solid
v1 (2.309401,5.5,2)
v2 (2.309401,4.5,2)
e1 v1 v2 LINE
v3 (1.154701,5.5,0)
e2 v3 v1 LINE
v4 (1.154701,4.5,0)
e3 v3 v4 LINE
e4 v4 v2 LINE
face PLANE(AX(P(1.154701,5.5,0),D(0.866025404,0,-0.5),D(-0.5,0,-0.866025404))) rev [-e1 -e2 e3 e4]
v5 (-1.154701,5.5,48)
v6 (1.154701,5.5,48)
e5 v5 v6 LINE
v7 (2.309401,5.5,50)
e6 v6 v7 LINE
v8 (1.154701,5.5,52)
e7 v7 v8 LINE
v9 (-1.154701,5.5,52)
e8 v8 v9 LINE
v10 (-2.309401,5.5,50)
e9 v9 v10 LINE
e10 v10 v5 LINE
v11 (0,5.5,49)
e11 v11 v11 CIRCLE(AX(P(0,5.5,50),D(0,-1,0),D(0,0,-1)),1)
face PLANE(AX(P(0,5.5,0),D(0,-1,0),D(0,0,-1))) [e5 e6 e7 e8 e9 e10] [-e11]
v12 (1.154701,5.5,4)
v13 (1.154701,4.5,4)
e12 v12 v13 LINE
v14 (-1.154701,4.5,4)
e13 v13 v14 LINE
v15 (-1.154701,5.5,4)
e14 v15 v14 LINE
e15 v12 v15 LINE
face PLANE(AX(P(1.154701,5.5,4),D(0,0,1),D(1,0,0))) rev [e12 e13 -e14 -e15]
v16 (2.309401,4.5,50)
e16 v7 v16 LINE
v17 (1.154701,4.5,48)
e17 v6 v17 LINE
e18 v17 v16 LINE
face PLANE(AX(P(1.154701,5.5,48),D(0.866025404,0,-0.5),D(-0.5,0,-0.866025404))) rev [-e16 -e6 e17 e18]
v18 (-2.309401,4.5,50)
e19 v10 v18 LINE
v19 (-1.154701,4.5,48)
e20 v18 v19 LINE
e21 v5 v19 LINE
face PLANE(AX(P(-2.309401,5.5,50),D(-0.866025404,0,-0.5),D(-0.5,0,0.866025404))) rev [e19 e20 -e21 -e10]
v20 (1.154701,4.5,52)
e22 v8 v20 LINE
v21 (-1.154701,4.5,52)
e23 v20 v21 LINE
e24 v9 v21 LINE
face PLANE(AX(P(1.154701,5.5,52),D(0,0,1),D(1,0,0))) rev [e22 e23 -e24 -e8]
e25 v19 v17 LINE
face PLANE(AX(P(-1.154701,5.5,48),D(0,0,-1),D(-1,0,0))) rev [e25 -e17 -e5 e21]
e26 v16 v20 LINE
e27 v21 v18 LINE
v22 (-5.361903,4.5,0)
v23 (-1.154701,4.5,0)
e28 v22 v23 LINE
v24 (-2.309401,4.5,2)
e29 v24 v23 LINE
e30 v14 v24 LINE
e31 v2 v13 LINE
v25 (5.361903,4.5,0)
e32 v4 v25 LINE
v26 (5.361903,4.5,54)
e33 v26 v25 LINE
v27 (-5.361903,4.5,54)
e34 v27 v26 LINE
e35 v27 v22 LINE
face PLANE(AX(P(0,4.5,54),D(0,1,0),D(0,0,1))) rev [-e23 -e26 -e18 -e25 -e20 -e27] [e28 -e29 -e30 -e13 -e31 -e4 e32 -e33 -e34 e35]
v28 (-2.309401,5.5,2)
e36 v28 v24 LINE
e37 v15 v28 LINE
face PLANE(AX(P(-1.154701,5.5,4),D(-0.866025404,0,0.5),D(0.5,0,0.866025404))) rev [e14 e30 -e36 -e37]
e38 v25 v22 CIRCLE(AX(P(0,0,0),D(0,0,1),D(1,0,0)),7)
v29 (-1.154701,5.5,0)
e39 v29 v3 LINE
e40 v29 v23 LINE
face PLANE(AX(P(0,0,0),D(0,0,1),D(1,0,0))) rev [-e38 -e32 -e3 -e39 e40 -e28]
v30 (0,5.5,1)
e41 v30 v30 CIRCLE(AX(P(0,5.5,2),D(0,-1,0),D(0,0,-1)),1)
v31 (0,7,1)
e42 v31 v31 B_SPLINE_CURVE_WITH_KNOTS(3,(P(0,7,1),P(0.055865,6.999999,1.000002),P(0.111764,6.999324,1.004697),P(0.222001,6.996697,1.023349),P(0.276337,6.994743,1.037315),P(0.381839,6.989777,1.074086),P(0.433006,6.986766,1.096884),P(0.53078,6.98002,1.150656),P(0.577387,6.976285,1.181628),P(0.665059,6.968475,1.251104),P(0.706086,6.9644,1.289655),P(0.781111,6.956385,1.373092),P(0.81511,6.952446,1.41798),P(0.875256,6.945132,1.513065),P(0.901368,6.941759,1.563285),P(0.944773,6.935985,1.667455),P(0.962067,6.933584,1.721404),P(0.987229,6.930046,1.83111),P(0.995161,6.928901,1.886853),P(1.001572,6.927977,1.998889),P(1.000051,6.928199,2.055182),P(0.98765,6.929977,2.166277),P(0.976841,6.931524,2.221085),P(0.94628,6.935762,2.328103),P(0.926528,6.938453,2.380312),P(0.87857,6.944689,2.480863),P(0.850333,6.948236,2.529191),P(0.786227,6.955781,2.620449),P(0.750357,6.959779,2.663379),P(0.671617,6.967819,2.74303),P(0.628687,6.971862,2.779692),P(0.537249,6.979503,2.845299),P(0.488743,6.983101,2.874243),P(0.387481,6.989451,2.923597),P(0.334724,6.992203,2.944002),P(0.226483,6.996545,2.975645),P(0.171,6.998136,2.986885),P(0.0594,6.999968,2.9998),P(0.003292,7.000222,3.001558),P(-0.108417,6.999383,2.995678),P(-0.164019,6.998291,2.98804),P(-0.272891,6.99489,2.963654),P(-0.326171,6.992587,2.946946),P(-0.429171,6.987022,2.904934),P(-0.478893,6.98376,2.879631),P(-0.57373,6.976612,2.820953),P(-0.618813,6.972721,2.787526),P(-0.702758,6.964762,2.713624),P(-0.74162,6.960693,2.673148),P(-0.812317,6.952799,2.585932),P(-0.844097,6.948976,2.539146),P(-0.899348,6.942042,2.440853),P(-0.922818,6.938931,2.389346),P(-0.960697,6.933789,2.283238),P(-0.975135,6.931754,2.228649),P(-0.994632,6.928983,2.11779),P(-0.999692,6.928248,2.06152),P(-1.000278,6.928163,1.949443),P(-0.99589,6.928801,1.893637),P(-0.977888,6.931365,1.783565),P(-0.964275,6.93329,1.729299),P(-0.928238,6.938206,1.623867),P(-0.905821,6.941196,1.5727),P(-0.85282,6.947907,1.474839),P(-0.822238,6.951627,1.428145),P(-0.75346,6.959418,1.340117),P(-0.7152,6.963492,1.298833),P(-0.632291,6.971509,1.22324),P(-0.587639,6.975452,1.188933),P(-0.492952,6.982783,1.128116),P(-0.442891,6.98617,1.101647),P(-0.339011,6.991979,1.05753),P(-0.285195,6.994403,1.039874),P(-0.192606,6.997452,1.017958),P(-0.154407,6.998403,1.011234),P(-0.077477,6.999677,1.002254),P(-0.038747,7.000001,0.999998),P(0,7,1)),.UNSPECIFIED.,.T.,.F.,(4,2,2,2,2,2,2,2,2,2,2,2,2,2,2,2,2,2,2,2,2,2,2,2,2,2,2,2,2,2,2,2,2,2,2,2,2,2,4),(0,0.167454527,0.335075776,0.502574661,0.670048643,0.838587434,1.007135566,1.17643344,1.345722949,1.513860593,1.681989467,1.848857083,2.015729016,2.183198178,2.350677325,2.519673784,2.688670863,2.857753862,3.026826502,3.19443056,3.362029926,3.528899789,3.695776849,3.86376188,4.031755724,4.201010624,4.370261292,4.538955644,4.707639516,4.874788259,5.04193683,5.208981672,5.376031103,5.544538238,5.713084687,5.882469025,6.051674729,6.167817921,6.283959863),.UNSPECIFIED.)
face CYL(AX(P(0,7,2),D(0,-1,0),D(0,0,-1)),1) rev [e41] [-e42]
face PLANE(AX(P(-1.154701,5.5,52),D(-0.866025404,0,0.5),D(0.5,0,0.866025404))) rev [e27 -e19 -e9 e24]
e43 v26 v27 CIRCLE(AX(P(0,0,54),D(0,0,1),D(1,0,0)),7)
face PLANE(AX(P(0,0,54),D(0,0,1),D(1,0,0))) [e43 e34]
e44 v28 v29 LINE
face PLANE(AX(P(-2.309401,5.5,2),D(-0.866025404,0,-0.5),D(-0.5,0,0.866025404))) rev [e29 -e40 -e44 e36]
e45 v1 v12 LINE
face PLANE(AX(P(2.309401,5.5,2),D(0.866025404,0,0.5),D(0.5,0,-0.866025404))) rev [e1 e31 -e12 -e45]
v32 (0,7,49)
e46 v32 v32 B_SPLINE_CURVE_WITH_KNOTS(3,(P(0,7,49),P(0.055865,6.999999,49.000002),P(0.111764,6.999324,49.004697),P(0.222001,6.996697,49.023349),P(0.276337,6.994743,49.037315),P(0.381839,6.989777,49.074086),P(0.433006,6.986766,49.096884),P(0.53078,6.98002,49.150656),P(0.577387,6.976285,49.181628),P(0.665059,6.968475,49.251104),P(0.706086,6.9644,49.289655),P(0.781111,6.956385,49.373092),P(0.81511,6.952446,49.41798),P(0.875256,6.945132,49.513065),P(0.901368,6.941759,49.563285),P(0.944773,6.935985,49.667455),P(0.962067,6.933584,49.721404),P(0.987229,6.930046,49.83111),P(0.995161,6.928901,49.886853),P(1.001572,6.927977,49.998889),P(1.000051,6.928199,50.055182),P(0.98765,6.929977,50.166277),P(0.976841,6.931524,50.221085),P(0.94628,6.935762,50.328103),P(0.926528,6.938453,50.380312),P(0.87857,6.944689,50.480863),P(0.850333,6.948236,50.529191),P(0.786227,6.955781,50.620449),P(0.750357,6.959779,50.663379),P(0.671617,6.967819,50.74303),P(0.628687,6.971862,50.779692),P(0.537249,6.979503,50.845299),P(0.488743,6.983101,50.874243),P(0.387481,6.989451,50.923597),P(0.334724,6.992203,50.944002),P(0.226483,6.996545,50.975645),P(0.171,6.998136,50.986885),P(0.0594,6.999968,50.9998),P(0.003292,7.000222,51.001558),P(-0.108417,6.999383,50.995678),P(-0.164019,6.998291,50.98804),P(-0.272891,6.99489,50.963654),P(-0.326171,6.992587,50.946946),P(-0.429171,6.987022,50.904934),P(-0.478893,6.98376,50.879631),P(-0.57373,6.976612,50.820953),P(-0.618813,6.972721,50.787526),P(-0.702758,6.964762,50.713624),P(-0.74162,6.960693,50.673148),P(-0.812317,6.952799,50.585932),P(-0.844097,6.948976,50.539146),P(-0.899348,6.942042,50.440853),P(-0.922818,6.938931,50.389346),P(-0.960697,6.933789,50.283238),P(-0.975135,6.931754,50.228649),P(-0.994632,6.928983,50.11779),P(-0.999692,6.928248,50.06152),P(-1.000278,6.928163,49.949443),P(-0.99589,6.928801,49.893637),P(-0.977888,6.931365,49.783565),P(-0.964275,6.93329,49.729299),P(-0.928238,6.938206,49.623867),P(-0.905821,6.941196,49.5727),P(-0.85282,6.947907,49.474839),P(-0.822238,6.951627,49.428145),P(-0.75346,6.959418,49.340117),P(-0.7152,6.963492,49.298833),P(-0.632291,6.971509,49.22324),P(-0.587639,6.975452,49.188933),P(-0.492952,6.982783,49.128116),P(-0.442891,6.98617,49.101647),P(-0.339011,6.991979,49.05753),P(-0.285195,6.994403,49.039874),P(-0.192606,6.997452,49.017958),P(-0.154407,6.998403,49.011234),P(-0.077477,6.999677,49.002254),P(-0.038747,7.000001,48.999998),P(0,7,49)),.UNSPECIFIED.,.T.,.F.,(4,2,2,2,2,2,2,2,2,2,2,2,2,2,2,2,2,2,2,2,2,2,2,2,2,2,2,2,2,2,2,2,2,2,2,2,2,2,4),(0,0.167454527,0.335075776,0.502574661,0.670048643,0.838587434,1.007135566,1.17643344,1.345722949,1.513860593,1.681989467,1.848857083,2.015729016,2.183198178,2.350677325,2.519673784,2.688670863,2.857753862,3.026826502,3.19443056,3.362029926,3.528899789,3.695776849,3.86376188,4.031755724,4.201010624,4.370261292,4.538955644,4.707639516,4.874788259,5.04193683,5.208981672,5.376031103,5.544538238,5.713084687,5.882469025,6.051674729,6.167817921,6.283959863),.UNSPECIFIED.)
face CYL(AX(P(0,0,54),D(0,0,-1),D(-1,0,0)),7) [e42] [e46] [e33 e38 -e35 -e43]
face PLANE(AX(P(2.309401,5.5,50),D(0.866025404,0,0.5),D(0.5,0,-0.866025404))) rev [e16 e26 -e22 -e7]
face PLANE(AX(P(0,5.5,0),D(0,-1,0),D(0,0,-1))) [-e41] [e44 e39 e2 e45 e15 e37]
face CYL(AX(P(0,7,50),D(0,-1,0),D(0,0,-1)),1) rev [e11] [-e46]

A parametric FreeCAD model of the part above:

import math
import FreeCAD as App
import Part
import Sketcher

V = App.Vector
Q = App.Units.Quantity


def add_polygon(sketch, points):
    """Adds a closed chain of lines whose ends are joined by coincident constraints."""
    first, n = sketch.GeometryCount, len(points)
    for a, b in zip(points, points[1:] + points[:1]):
        sketch.addGeometry(Part.LineSegment(App.Vector(*a, 0), App.Vector(*b, 0)), False)
    for i in range(n):
        sketch.addConstraint(Sketcher.Constraint("Coincident", first + i, 2, first + (i + 1) % n, 1))

doc = App.newDocument("Part")
body = doc.addObject("PartDesign::Body", "Body")

sketch1 = body.newObject("Sketcher::SketchObject", "Sketch")
sketch1.AttachmentSupport = (doc.getObject("XY_Plane"), [""])
sketch1.MapMode = "FlatFace"
sketch1.addGeometry([
    Part.ArcOfCircle(Part.Circle(V(0, 0, 0), V(0, 0, 1), 7), math.radians(40), math.radians(140)),
    Part.LineSegment(V(-5, 4, 0), V(5, 4, 0)),
], False)
sketch1.addConstraint([
    Sketcher.Constraint("Coincident", 0, 1, 1, 2),
    Sketcher.Constraint("Coincident", 1, 1, 0, 2),
    Sketcher.Constraint("Horizontal", 1),
    Sketcher.Constraint("Coincident", 0, 3, -1, 1),
    Sketcher.Constraint("Radius", 0, Q("7 mm")),
    Sketcher.Constraint("DistanceY", -1, 1, 0, 1, Q("4.5 mm")),
])
pad1 = body.newObject("PartDesign::Pad", "Pad")
pad1.Profile = sketch1
pad1.Length = 54

sketch2 = body.newObject("Sketcher::SketchObject", "Sketch001")
sketch2.AttachmentSupport = (doc.getObject("XZ_Plane"), [""])
sketch2.MapMode = "FlatFace"
sketch2.AttachmentOffset = App.Placement(V(0, 0, -4.5), App.Rotation())
add_polygon(sketch2, [(2.3, 50), (1.2, 52), (-1.2, 52), (-2.3, 50), (-1.2, 48), (1.2, 48)])
add_polygon(sketch2, [(2.3, 2), (1.2, 4), (-1.2, 4), (-2.3, 2), (-1.2, 0), (1.2, 0)])
sketch2.addConstraint([
    Sketcher.Constraint("Horizontal", 1),
    Sketcher.Constraint("Horizontal", 4),
    Sketcher.Constraint("Horizontal", 7),
    Sketcher.Constraint("Horizontal", 10),
    Sketcher.Constraint("Symmetric", 9, 2, 10, 2, -1, 1),
    Sketcher.Constraint("Symmetric", 2, 2, 5, 2, -2),
    Sketcher.Constraint("Symmetric", 8, 2, 11, 2, -2),
    Sketcher.Constraint("Parallel", 0, 3),
    Sketcher.Constraint("Parallel", 2, 5),
    Sketcher.Constraint("Parallel", 3, 6),
    Sketcher.Constraint("Parallel", 5, 8),
    Sketcher.Constraint("Parallel", 6, 9),
    Sketcher.Constraint("Parallel", 8, 11),
    Sketcher.Constraint("Vertical", 1, 2, 3, 2),
    Sketcher.Constraint("Vertical", 4, 2, 6, 2),
    Sketcher.Constraint("Vertical", 2, 2, 8, 2),
    Sketcher.Constraint("Vertical", 7, 2, 9, 2),
    Sketcher.Constraint("Angle", 0, Q("120 deg")),
    Sketcher.Constraint("DistanceY", -1, 1, 0, 2, Q("52 mm")),
    Sketcher.Constraint("DistanceY", -1, 1, 2, 2, Q("50 mm")),
    Sketcher.Constraint("DistanceX", 1, 2, 1, 1, Q("2.309401 mm")),
])
pocket1 = body.newObject("PartDesign::Pocket", "Pocket")
pocket1.Profile = sketch2
pocket1.Length = 1

sketch3 = body.newObject("Sketcher::SketchObject", "Sketch002")
sketch3.AttachmentSupport = (doc.getObject("XZ_Plane"), [""])
sketch3.MapMode = "FlatFace"
sketch3.AttachmentOffset = App.Placement(V(0, 0, -5.5), App.Rotation())
sketch3.addGeometry([
    Part.Circle(V(0, 2, 0), V(0, 0, 1), 1),
    Part.Circle(V(0, 50, 0), V(0, 0, 1), 1),
], False)
sketch3.addConstraint([
    Sketcher.Constraint("Equal", 0, 1),
    Sketcher.Constraint("PointOnObject", 0, 3, -2),
    Sketcher.Constraint("PointOnObject", 1, 3, -2),
    Sketcher.Constraint("Diameter", 0, Q("2 mm")),
    Sketcher.Constraint("DistanceY", -1, 1, 0, 3, Q("2 mm")),
    Sketcher.Constraint("DistanceY", -1, 1, 1, 3, Q("50 mm")),
])
pocket2 = body.newObject("PartDesign::Pocket", "Pocket001")
pocket2.Profile = sketch3
pocket2.Type = "ThroughAll"

doc.recompute()
